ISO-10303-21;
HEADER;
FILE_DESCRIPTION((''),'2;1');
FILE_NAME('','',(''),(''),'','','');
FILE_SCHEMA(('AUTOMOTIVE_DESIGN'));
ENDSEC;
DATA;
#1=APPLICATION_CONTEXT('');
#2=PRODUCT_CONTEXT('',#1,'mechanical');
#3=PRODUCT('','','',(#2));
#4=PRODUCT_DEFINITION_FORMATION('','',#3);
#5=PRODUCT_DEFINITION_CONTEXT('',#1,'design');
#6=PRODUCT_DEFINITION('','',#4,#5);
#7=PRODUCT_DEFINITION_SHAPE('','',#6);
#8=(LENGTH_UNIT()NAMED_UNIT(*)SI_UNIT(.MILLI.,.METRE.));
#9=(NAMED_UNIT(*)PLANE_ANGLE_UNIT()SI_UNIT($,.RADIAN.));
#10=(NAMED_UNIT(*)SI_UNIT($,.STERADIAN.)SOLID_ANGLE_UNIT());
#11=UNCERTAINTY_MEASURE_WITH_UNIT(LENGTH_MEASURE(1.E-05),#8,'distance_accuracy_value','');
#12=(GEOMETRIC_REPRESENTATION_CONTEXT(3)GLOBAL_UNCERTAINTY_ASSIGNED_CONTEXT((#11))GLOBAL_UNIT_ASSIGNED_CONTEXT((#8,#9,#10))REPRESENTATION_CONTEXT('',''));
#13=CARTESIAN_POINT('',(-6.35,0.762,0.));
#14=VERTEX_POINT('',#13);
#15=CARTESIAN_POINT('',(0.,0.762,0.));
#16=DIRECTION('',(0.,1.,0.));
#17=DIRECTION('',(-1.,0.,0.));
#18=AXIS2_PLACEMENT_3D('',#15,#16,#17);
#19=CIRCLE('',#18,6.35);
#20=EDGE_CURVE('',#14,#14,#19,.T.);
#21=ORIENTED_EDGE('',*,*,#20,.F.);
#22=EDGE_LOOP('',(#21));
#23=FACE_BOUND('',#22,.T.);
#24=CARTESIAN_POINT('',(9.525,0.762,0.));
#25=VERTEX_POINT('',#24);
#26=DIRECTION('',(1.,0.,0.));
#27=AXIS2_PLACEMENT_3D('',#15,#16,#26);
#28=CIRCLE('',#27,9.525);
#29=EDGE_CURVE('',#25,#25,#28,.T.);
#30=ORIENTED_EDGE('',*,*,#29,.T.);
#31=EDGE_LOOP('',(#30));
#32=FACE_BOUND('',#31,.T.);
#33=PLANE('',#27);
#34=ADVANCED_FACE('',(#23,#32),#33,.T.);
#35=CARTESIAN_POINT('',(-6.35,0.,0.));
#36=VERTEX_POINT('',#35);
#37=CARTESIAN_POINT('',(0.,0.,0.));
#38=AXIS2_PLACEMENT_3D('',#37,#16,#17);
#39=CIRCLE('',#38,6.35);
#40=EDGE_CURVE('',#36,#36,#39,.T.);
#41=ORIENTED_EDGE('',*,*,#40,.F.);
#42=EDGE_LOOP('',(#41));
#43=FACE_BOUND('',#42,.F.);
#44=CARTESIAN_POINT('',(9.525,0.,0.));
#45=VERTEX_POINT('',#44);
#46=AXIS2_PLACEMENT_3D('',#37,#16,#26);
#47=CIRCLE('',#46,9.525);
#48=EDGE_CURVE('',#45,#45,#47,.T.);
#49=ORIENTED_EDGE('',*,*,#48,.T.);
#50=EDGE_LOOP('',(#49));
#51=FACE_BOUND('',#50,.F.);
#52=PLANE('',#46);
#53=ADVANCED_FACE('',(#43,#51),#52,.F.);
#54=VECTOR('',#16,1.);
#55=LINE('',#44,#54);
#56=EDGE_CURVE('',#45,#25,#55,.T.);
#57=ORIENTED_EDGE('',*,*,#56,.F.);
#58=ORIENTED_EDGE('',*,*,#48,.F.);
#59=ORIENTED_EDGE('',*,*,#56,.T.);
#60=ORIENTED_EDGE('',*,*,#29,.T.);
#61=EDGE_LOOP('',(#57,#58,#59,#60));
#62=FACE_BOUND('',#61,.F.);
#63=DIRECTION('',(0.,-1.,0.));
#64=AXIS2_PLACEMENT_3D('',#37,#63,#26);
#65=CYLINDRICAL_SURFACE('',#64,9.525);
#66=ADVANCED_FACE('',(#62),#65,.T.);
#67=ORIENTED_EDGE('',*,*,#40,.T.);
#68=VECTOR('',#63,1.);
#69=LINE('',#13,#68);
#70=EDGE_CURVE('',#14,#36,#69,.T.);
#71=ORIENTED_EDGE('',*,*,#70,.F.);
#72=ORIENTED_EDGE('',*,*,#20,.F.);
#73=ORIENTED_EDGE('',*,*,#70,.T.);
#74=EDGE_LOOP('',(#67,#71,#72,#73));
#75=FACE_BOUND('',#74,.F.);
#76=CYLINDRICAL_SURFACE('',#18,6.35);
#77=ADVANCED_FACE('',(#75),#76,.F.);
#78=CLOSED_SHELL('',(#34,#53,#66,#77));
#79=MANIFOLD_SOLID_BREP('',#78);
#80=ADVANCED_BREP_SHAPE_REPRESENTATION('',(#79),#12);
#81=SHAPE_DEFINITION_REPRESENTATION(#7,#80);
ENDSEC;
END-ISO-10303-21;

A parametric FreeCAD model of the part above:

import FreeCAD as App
import Part
import Sketcher
from FreeCAD import Vector
Q = App.Units.Quantity

doc = App.newDocument("Part")
params = doc.addObject("Spreadsheet::Sheet", "Params")
for row, (alias, value) in enumerate([
    ("sketch1_diameter", "0.75 in"),
    ("pad1_length", "0.03 in"),
    ("sketch2_diameter", "0.5 in"),
], start=1):
    params.set(f"A{row}", alias)
    params.set(f"B{row}", "=" + value)
    params.setAlias(f"B{row}", alias)

body = doc.addObject("PartDesign::Body", "Body")

sketch1 = body.newObject("Sketcher::SketchObject", "Sketch")
sketch1.AttachmentSupport = (doc.getObject("XZ_Plane"), [""])
sketch1.MapMode = "FlatFace"
sketch1.addGeometry(Part.Circle(Vector(0, 0, 0), Vector(0, 0, 1), 9.525), False)
sketch1.addConstraint([
    Sketcher.Constraint("Coincident", 0, 3, -1, 1),
    Sketcher.Constraint("Diameter", 0, Q("0.75 in")),
])
sketch1.setExpression("Constraints[1]", "Params.sketch1_diameter")
pad1 = body.newObject("PartDesign::Pad", "Pad")
pad1.Profile = sketch1
pad1.setExpression("Length", "Params.pad1_length")
pad1.Reversed = True

sketch2 = body.newObject("Sketcher::SketchObject", "Sketch001")
sketch2.AttachmentSupport = (doc.getObject("XZ_Plane"), [""])
sketch2.MapMode = "FlatFace"
sketch2.AttachmentOffset = App.Placement(Vector(0, 0, -0.03 * 25.4), App.Rotation())
sketch2.addGeometry(Part.Circle(Vector(0, 0, 0), Vector(0, 0, 1), 6.35), False)
sketch2.addConstraint([
    Sketcher.Constraint("Coincident", 0, 3, -1, 1),
    Sketcher.Constraint("Diameter", 0, Q("0.5 in")),
])
sketch2.setExpression("Constraints[1]", "Params.sketch2_diameter")
pocket1 = body.newObject("PartDesign::Pocket", "Pocket")
pocket1.Profile = sketch2
pocket1.Type = "ThroughAll"
pocket1.Reversed = True

doc.recompute()
